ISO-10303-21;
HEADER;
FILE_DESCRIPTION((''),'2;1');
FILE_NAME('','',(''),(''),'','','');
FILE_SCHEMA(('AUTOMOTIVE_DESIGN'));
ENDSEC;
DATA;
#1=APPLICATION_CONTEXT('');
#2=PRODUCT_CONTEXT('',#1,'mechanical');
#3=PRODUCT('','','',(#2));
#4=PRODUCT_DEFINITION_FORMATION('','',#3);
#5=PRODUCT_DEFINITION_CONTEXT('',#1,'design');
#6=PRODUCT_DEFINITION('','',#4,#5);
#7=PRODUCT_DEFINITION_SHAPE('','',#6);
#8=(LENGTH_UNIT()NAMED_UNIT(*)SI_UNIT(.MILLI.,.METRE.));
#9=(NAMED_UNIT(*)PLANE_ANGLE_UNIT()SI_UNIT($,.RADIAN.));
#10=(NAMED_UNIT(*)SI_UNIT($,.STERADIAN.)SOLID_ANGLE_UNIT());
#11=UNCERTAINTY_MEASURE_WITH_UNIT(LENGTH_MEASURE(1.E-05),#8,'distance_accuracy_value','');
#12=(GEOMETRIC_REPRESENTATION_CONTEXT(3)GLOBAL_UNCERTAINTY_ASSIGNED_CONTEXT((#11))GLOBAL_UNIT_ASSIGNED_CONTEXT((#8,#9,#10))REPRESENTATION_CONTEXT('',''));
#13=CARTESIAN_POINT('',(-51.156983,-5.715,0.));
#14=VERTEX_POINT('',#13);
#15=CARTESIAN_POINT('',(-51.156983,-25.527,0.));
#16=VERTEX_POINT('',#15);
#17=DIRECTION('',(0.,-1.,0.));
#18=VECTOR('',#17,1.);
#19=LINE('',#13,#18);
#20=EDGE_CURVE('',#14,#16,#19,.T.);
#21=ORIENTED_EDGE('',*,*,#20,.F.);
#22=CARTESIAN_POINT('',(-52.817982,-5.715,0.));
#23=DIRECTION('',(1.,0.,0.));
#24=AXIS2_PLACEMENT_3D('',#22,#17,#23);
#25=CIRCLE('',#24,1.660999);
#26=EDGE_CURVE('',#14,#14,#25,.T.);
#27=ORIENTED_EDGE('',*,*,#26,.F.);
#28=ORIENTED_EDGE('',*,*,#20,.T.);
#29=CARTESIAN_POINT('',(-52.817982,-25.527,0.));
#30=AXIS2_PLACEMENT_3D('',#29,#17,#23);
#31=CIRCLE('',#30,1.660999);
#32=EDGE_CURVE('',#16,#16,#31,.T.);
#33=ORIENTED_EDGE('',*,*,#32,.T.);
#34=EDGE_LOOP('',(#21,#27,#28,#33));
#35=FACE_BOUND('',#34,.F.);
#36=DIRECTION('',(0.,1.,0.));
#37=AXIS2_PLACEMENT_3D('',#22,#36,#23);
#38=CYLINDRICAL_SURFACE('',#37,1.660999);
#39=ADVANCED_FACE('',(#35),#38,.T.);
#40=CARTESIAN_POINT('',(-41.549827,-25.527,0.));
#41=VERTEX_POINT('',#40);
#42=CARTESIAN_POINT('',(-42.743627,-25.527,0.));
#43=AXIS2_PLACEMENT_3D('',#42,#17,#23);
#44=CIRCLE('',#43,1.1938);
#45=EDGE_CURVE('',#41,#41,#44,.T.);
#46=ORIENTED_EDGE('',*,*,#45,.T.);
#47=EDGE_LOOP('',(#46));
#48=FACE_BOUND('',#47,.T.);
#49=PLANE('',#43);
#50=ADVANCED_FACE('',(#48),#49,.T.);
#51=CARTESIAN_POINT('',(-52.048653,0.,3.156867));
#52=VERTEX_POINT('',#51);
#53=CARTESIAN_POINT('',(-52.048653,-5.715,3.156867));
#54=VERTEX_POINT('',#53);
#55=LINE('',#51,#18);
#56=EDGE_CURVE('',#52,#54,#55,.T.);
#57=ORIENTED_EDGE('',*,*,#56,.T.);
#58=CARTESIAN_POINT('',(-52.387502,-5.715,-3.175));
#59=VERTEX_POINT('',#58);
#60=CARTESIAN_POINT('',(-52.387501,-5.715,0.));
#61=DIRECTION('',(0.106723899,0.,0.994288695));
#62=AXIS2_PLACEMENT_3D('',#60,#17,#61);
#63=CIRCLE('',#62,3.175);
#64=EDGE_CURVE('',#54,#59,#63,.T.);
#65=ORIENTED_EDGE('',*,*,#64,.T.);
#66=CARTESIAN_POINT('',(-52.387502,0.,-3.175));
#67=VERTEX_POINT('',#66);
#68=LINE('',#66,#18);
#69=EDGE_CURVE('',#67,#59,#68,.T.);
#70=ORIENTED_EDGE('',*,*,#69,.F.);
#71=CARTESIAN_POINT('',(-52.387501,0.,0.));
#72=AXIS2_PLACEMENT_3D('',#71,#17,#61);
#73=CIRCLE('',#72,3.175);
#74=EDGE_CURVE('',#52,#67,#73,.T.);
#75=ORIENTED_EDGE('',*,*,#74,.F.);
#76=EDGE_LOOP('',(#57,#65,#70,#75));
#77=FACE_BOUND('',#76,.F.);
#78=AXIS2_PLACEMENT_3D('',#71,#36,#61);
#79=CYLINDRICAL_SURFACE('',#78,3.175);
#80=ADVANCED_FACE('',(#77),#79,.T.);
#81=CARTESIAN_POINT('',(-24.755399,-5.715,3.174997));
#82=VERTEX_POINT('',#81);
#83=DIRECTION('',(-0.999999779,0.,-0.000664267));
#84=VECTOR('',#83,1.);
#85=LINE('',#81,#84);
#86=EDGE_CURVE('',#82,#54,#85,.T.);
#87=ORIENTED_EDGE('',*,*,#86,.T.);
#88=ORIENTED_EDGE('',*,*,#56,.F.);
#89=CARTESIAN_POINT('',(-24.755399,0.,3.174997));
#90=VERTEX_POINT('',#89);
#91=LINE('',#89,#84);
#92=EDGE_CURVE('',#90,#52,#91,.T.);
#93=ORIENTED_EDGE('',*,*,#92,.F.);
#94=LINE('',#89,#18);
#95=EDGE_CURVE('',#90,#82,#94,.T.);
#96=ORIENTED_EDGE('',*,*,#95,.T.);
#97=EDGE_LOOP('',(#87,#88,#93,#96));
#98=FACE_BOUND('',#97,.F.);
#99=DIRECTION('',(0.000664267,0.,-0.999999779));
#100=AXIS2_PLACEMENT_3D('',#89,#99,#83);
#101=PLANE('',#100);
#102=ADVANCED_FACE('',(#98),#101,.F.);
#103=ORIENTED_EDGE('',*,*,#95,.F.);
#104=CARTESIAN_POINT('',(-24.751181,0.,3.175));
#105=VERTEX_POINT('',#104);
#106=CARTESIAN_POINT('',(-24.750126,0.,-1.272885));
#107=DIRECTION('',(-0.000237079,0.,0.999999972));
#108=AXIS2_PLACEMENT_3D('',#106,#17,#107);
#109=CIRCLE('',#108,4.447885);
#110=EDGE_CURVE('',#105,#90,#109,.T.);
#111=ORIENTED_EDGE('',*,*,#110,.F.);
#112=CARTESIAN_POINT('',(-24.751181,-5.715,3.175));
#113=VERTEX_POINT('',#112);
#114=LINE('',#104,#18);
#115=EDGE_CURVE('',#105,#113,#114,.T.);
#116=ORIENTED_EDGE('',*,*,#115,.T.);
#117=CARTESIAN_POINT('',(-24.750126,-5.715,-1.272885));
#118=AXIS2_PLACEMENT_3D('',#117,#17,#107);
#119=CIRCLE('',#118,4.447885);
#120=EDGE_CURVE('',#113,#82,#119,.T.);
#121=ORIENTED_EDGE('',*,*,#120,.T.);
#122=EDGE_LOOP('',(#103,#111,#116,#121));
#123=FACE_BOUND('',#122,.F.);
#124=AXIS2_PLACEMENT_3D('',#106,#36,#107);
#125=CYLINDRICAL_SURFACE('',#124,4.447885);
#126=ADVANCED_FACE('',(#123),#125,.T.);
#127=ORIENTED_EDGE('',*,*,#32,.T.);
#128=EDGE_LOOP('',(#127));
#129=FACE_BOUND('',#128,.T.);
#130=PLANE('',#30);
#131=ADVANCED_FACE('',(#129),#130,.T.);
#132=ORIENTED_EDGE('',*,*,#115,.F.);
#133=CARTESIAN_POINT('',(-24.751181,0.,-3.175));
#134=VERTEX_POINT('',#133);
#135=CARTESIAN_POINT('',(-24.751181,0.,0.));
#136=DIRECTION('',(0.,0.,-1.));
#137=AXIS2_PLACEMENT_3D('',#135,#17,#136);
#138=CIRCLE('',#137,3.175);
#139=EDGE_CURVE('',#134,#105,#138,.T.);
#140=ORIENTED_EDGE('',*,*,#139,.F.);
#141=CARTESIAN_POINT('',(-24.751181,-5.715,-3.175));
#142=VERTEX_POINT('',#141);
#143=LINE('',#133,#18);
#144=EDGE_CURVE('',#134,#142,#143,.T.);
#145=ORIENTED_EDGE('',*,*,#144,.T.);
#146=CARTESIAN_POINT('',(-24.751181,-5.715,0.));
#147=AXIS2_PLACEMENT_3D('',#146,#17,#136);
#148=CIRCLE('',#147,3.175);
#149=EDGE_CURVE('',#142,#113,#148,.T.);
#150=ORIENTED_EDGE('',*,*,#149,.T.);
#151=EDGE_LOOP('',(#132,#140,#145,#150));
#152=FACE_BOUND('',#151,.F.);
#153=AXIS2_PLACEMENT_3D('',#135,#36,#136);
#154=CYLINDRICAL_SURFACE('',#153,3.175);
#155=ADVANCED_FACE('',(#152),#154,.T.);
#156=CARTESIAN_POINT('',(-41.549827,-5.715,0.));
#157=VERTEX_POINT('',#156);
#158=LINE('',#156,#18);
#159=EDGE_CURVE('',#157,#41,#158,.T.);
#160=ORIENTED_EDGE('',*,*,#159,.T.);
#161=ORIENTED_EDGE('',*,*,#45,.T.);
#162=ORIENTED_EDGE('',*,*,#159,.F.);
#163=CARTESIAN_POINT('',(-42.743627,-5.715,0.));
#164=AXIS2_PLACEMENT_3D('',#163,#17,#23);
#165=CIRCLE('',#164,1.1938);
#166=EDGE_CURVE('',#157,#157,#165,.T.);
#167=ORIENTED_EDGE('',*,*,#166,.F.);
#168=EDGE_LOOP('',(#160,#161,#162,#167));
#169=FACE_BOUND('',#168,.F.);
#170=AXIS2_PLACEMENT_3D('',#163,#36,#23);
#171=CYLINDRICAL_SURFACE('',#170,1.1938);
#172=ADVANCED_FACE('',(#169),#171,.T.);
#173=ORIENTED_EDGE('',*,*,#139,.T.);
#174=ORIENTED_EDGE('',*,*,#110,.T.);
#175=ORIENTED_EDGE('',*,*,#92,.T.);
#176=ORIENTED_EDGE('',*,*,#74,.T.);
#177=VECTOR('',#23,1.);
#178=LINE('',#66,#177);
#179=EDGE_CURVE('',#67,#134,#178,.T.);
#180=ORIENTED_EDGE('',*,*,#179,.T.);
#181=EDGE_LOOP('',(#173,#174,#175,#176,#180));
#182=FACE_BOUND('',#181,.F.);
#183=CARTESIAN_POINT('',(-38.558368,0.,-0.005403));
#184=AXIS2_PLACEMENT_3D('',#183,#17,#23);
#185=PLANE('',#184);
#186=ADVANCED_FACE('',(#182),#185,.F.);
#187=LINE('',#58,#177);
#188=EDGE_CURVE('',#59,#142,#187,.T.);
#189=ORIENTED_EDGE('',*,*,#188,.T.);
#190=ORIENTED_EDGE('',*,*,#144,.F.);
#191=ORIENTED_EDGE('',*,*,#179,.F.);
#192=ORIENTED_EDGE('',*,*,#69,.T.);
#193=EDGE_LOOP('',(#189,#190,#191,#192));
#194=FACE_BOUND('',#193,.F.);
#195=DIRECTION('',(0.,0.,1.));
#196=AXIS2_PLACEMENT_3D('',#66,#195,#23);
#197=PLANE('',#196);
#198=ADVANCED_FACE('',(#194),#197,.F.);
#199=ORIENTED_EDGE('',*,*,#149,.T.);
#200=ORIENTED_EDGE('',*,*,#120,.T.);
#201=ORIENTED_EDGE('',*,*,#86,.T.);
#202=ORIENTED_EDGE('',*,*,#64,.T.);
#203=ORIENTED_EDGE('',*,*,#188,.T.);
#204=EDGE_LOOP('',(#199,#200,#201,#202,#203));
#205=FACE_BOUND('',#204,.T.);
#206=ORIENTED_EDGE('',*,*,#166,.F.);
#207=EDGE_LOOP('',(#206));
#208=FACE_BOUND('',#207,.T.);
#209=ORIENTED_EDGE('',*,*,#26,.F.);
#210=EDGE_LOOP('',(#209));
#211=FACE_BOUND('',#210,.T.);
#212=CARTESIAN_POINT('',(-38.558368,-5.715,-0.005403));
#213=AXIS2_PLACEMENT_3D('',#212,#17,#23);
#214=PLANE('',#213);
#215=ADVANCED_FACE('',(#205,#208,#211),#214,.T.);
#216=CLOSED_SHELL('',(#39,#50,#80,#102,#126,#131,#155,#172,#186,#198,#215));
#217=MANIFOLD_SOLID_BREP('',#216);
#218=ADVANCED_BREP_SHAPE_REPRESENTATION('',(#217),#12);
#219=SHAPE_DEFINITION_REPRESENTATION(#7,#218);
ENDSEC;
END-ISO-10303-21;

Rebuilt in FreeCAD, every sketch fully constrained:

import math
import FreeCAD as App
import Part
import Sketcher
Q = App.Units.Quantity

doc = App.newDocument("Part")
params = doc.addObject("Spreadsheet::Sheet", "Params")
for row, (alias, value) in enumerate([
    ("sketch1_radius", "0.125 in"),
    ("pad1_length", "0.225 in"),
    ("sketch2_diameter", "0.094 in"),
    ("pad2_length", "0.78 in"),
], start=1):
    params.set(f"A{row}", alias)
    params.set(f"B{row}", "=" + value)
    params.setAlias(f"B{row}", alias)

body = doc.addObject("PartDesign::Body", "Body")

# Sketch on XZ plane
sketch1 = body.newObject("Sketcher::SketchObject", "Sketch")
sketch1.AttachmentSupport = (doc.getObject("XZ_Plane"), [""])
sketch1.MapMode = "FlatFace"
sketch1.addGeometry([
    Part.LineSegment(App.Vector(-24.7554, 3.175, 0), App.Vector(-52.0487, 3.1569, 0)),  # 0
    Part.ArcOfCircle(Part.Circle(App.Vector(-52.3875, 0, 0), App.Vector(0, 0, 1), 3.175), math.radians(84), math.radians(270)),  # 1
    Part.LineSegment(App.Vector(-52.3875, -3.175, 0), App.Vector(-24.7512, -3.175, 0)),  # 2
    Part.ArcOfCircle(Part.Circle(App.Vector(-24.7512, 0, 0), App.Vector(0, 0, 1), 3.175), math.radians(-90), math.radians(90)),  # 3
    Part.ArcOfCircle(Part.Circle(App.Vector(-24.7501, -1.2729, 0), App.Vector(0, 0, 1), 4.4479), math.radians(90.01), math.radians(90.07)),  # 4
], False)
sketch1.addConstraint([
    Sketcher.Constraint("Coincident", 0, 2, 1, 1),
    Sketcher.Constraint("Tangent", 1, 2, 2, 1),
    Sketcher.Constraint("Tangent", 2, 2, 3, 1),
    Sketcher.Constraint("Coincident", 3, 2, 4, 1),
    Sketcher.Constraint("Coincident", 4, 2, 0, 1),
    Sketcher.Constraint("Horizontal", 2),
    Sketcher.Constraint("Equal", 1, 3),
    Sketcher.Constraint("Symmetric", 2, 2, 3, 2, -1),
    Sketcher.Constraint("Radius", 1, Q("0.125 in")),
    Sketcher.Constraint("DistanceX", 1, 3, -1, 1, Q("2.0625001 in")),
    Sketcher.Constraint("Radius", 4, Q("4.447885 mm")),
    Sketcher.Constraint("DistanceX", 2, 1, 2, 2, Q("27.636321 mm")),
    Sketcher.Constraint("DistanceX", 4, 2, -1, 1, Q("24.755399 mm")),
    Sketcher.Constraint("Distance", 0, Q("27.29326 mm")),
    Sketcher.Constraint("DistanceX", 4, 3, -1, 1, Q("24.750126 mm")),
])
sketch1.setExpression("Constraints[8]", "Params.sketch1_radius")
pad1 = body.newObject("PartDesign::Pad", "Pad")
pad1.Profile = sketch1
pad1.setExpression("Length", "Params.pad1_length")

# Sketch on XZ plane
sketch2 = body.newObject("Sketcher::SketchObject", "Sketch001")
sketch2.AttachmentSupport = (doc.getObject("XZ_Plane"), [""])
sketch2.MapMode = "FlatFace"
sketch2.AttachmentOffset = App.Placement(App.Vector(0, 0, 0.225 * 25.4), App.Rotation())
sketch2.addGeometry([
    Part.Circle(App.Vector(-52.8, 0, 0), App.Vector(0, 0, 1), 1.7),
    Part.Circle(App.Vector(-42.7, 0, 0), App.Vector(0, 0, 1), 1.2),
], False)
sketch2.addConstraint([
    Sketcher.Constraint("PointOnObject", 0, 3, -1),
    Sketcher.Constraint("PointOnObject", 1, 3, -1),
    Sketcher.Constraint("Diameter", 1, Q("0.094 in")),
    Sketcher.Constraint("Diameter", 0, Q("3.321998 mm")),
    Sketcher.Constraint("DistanceX", 0, 3, -1, 1, Q("52.817982 mm")),
    Sketcher.Constraint("DistanceX", 1, 3, -1, 1, Q("42.743627 mm")),
])
sketch2.setExpression("Constraints[2]", "Params.sketch2_diameter")
pad2 = body.newObject("PartDesign::Pad", "Pad001")
pad2.Profile = sketch2
pad2.setExpression("Length", "Params.pad2_length")

doc.recompute()
